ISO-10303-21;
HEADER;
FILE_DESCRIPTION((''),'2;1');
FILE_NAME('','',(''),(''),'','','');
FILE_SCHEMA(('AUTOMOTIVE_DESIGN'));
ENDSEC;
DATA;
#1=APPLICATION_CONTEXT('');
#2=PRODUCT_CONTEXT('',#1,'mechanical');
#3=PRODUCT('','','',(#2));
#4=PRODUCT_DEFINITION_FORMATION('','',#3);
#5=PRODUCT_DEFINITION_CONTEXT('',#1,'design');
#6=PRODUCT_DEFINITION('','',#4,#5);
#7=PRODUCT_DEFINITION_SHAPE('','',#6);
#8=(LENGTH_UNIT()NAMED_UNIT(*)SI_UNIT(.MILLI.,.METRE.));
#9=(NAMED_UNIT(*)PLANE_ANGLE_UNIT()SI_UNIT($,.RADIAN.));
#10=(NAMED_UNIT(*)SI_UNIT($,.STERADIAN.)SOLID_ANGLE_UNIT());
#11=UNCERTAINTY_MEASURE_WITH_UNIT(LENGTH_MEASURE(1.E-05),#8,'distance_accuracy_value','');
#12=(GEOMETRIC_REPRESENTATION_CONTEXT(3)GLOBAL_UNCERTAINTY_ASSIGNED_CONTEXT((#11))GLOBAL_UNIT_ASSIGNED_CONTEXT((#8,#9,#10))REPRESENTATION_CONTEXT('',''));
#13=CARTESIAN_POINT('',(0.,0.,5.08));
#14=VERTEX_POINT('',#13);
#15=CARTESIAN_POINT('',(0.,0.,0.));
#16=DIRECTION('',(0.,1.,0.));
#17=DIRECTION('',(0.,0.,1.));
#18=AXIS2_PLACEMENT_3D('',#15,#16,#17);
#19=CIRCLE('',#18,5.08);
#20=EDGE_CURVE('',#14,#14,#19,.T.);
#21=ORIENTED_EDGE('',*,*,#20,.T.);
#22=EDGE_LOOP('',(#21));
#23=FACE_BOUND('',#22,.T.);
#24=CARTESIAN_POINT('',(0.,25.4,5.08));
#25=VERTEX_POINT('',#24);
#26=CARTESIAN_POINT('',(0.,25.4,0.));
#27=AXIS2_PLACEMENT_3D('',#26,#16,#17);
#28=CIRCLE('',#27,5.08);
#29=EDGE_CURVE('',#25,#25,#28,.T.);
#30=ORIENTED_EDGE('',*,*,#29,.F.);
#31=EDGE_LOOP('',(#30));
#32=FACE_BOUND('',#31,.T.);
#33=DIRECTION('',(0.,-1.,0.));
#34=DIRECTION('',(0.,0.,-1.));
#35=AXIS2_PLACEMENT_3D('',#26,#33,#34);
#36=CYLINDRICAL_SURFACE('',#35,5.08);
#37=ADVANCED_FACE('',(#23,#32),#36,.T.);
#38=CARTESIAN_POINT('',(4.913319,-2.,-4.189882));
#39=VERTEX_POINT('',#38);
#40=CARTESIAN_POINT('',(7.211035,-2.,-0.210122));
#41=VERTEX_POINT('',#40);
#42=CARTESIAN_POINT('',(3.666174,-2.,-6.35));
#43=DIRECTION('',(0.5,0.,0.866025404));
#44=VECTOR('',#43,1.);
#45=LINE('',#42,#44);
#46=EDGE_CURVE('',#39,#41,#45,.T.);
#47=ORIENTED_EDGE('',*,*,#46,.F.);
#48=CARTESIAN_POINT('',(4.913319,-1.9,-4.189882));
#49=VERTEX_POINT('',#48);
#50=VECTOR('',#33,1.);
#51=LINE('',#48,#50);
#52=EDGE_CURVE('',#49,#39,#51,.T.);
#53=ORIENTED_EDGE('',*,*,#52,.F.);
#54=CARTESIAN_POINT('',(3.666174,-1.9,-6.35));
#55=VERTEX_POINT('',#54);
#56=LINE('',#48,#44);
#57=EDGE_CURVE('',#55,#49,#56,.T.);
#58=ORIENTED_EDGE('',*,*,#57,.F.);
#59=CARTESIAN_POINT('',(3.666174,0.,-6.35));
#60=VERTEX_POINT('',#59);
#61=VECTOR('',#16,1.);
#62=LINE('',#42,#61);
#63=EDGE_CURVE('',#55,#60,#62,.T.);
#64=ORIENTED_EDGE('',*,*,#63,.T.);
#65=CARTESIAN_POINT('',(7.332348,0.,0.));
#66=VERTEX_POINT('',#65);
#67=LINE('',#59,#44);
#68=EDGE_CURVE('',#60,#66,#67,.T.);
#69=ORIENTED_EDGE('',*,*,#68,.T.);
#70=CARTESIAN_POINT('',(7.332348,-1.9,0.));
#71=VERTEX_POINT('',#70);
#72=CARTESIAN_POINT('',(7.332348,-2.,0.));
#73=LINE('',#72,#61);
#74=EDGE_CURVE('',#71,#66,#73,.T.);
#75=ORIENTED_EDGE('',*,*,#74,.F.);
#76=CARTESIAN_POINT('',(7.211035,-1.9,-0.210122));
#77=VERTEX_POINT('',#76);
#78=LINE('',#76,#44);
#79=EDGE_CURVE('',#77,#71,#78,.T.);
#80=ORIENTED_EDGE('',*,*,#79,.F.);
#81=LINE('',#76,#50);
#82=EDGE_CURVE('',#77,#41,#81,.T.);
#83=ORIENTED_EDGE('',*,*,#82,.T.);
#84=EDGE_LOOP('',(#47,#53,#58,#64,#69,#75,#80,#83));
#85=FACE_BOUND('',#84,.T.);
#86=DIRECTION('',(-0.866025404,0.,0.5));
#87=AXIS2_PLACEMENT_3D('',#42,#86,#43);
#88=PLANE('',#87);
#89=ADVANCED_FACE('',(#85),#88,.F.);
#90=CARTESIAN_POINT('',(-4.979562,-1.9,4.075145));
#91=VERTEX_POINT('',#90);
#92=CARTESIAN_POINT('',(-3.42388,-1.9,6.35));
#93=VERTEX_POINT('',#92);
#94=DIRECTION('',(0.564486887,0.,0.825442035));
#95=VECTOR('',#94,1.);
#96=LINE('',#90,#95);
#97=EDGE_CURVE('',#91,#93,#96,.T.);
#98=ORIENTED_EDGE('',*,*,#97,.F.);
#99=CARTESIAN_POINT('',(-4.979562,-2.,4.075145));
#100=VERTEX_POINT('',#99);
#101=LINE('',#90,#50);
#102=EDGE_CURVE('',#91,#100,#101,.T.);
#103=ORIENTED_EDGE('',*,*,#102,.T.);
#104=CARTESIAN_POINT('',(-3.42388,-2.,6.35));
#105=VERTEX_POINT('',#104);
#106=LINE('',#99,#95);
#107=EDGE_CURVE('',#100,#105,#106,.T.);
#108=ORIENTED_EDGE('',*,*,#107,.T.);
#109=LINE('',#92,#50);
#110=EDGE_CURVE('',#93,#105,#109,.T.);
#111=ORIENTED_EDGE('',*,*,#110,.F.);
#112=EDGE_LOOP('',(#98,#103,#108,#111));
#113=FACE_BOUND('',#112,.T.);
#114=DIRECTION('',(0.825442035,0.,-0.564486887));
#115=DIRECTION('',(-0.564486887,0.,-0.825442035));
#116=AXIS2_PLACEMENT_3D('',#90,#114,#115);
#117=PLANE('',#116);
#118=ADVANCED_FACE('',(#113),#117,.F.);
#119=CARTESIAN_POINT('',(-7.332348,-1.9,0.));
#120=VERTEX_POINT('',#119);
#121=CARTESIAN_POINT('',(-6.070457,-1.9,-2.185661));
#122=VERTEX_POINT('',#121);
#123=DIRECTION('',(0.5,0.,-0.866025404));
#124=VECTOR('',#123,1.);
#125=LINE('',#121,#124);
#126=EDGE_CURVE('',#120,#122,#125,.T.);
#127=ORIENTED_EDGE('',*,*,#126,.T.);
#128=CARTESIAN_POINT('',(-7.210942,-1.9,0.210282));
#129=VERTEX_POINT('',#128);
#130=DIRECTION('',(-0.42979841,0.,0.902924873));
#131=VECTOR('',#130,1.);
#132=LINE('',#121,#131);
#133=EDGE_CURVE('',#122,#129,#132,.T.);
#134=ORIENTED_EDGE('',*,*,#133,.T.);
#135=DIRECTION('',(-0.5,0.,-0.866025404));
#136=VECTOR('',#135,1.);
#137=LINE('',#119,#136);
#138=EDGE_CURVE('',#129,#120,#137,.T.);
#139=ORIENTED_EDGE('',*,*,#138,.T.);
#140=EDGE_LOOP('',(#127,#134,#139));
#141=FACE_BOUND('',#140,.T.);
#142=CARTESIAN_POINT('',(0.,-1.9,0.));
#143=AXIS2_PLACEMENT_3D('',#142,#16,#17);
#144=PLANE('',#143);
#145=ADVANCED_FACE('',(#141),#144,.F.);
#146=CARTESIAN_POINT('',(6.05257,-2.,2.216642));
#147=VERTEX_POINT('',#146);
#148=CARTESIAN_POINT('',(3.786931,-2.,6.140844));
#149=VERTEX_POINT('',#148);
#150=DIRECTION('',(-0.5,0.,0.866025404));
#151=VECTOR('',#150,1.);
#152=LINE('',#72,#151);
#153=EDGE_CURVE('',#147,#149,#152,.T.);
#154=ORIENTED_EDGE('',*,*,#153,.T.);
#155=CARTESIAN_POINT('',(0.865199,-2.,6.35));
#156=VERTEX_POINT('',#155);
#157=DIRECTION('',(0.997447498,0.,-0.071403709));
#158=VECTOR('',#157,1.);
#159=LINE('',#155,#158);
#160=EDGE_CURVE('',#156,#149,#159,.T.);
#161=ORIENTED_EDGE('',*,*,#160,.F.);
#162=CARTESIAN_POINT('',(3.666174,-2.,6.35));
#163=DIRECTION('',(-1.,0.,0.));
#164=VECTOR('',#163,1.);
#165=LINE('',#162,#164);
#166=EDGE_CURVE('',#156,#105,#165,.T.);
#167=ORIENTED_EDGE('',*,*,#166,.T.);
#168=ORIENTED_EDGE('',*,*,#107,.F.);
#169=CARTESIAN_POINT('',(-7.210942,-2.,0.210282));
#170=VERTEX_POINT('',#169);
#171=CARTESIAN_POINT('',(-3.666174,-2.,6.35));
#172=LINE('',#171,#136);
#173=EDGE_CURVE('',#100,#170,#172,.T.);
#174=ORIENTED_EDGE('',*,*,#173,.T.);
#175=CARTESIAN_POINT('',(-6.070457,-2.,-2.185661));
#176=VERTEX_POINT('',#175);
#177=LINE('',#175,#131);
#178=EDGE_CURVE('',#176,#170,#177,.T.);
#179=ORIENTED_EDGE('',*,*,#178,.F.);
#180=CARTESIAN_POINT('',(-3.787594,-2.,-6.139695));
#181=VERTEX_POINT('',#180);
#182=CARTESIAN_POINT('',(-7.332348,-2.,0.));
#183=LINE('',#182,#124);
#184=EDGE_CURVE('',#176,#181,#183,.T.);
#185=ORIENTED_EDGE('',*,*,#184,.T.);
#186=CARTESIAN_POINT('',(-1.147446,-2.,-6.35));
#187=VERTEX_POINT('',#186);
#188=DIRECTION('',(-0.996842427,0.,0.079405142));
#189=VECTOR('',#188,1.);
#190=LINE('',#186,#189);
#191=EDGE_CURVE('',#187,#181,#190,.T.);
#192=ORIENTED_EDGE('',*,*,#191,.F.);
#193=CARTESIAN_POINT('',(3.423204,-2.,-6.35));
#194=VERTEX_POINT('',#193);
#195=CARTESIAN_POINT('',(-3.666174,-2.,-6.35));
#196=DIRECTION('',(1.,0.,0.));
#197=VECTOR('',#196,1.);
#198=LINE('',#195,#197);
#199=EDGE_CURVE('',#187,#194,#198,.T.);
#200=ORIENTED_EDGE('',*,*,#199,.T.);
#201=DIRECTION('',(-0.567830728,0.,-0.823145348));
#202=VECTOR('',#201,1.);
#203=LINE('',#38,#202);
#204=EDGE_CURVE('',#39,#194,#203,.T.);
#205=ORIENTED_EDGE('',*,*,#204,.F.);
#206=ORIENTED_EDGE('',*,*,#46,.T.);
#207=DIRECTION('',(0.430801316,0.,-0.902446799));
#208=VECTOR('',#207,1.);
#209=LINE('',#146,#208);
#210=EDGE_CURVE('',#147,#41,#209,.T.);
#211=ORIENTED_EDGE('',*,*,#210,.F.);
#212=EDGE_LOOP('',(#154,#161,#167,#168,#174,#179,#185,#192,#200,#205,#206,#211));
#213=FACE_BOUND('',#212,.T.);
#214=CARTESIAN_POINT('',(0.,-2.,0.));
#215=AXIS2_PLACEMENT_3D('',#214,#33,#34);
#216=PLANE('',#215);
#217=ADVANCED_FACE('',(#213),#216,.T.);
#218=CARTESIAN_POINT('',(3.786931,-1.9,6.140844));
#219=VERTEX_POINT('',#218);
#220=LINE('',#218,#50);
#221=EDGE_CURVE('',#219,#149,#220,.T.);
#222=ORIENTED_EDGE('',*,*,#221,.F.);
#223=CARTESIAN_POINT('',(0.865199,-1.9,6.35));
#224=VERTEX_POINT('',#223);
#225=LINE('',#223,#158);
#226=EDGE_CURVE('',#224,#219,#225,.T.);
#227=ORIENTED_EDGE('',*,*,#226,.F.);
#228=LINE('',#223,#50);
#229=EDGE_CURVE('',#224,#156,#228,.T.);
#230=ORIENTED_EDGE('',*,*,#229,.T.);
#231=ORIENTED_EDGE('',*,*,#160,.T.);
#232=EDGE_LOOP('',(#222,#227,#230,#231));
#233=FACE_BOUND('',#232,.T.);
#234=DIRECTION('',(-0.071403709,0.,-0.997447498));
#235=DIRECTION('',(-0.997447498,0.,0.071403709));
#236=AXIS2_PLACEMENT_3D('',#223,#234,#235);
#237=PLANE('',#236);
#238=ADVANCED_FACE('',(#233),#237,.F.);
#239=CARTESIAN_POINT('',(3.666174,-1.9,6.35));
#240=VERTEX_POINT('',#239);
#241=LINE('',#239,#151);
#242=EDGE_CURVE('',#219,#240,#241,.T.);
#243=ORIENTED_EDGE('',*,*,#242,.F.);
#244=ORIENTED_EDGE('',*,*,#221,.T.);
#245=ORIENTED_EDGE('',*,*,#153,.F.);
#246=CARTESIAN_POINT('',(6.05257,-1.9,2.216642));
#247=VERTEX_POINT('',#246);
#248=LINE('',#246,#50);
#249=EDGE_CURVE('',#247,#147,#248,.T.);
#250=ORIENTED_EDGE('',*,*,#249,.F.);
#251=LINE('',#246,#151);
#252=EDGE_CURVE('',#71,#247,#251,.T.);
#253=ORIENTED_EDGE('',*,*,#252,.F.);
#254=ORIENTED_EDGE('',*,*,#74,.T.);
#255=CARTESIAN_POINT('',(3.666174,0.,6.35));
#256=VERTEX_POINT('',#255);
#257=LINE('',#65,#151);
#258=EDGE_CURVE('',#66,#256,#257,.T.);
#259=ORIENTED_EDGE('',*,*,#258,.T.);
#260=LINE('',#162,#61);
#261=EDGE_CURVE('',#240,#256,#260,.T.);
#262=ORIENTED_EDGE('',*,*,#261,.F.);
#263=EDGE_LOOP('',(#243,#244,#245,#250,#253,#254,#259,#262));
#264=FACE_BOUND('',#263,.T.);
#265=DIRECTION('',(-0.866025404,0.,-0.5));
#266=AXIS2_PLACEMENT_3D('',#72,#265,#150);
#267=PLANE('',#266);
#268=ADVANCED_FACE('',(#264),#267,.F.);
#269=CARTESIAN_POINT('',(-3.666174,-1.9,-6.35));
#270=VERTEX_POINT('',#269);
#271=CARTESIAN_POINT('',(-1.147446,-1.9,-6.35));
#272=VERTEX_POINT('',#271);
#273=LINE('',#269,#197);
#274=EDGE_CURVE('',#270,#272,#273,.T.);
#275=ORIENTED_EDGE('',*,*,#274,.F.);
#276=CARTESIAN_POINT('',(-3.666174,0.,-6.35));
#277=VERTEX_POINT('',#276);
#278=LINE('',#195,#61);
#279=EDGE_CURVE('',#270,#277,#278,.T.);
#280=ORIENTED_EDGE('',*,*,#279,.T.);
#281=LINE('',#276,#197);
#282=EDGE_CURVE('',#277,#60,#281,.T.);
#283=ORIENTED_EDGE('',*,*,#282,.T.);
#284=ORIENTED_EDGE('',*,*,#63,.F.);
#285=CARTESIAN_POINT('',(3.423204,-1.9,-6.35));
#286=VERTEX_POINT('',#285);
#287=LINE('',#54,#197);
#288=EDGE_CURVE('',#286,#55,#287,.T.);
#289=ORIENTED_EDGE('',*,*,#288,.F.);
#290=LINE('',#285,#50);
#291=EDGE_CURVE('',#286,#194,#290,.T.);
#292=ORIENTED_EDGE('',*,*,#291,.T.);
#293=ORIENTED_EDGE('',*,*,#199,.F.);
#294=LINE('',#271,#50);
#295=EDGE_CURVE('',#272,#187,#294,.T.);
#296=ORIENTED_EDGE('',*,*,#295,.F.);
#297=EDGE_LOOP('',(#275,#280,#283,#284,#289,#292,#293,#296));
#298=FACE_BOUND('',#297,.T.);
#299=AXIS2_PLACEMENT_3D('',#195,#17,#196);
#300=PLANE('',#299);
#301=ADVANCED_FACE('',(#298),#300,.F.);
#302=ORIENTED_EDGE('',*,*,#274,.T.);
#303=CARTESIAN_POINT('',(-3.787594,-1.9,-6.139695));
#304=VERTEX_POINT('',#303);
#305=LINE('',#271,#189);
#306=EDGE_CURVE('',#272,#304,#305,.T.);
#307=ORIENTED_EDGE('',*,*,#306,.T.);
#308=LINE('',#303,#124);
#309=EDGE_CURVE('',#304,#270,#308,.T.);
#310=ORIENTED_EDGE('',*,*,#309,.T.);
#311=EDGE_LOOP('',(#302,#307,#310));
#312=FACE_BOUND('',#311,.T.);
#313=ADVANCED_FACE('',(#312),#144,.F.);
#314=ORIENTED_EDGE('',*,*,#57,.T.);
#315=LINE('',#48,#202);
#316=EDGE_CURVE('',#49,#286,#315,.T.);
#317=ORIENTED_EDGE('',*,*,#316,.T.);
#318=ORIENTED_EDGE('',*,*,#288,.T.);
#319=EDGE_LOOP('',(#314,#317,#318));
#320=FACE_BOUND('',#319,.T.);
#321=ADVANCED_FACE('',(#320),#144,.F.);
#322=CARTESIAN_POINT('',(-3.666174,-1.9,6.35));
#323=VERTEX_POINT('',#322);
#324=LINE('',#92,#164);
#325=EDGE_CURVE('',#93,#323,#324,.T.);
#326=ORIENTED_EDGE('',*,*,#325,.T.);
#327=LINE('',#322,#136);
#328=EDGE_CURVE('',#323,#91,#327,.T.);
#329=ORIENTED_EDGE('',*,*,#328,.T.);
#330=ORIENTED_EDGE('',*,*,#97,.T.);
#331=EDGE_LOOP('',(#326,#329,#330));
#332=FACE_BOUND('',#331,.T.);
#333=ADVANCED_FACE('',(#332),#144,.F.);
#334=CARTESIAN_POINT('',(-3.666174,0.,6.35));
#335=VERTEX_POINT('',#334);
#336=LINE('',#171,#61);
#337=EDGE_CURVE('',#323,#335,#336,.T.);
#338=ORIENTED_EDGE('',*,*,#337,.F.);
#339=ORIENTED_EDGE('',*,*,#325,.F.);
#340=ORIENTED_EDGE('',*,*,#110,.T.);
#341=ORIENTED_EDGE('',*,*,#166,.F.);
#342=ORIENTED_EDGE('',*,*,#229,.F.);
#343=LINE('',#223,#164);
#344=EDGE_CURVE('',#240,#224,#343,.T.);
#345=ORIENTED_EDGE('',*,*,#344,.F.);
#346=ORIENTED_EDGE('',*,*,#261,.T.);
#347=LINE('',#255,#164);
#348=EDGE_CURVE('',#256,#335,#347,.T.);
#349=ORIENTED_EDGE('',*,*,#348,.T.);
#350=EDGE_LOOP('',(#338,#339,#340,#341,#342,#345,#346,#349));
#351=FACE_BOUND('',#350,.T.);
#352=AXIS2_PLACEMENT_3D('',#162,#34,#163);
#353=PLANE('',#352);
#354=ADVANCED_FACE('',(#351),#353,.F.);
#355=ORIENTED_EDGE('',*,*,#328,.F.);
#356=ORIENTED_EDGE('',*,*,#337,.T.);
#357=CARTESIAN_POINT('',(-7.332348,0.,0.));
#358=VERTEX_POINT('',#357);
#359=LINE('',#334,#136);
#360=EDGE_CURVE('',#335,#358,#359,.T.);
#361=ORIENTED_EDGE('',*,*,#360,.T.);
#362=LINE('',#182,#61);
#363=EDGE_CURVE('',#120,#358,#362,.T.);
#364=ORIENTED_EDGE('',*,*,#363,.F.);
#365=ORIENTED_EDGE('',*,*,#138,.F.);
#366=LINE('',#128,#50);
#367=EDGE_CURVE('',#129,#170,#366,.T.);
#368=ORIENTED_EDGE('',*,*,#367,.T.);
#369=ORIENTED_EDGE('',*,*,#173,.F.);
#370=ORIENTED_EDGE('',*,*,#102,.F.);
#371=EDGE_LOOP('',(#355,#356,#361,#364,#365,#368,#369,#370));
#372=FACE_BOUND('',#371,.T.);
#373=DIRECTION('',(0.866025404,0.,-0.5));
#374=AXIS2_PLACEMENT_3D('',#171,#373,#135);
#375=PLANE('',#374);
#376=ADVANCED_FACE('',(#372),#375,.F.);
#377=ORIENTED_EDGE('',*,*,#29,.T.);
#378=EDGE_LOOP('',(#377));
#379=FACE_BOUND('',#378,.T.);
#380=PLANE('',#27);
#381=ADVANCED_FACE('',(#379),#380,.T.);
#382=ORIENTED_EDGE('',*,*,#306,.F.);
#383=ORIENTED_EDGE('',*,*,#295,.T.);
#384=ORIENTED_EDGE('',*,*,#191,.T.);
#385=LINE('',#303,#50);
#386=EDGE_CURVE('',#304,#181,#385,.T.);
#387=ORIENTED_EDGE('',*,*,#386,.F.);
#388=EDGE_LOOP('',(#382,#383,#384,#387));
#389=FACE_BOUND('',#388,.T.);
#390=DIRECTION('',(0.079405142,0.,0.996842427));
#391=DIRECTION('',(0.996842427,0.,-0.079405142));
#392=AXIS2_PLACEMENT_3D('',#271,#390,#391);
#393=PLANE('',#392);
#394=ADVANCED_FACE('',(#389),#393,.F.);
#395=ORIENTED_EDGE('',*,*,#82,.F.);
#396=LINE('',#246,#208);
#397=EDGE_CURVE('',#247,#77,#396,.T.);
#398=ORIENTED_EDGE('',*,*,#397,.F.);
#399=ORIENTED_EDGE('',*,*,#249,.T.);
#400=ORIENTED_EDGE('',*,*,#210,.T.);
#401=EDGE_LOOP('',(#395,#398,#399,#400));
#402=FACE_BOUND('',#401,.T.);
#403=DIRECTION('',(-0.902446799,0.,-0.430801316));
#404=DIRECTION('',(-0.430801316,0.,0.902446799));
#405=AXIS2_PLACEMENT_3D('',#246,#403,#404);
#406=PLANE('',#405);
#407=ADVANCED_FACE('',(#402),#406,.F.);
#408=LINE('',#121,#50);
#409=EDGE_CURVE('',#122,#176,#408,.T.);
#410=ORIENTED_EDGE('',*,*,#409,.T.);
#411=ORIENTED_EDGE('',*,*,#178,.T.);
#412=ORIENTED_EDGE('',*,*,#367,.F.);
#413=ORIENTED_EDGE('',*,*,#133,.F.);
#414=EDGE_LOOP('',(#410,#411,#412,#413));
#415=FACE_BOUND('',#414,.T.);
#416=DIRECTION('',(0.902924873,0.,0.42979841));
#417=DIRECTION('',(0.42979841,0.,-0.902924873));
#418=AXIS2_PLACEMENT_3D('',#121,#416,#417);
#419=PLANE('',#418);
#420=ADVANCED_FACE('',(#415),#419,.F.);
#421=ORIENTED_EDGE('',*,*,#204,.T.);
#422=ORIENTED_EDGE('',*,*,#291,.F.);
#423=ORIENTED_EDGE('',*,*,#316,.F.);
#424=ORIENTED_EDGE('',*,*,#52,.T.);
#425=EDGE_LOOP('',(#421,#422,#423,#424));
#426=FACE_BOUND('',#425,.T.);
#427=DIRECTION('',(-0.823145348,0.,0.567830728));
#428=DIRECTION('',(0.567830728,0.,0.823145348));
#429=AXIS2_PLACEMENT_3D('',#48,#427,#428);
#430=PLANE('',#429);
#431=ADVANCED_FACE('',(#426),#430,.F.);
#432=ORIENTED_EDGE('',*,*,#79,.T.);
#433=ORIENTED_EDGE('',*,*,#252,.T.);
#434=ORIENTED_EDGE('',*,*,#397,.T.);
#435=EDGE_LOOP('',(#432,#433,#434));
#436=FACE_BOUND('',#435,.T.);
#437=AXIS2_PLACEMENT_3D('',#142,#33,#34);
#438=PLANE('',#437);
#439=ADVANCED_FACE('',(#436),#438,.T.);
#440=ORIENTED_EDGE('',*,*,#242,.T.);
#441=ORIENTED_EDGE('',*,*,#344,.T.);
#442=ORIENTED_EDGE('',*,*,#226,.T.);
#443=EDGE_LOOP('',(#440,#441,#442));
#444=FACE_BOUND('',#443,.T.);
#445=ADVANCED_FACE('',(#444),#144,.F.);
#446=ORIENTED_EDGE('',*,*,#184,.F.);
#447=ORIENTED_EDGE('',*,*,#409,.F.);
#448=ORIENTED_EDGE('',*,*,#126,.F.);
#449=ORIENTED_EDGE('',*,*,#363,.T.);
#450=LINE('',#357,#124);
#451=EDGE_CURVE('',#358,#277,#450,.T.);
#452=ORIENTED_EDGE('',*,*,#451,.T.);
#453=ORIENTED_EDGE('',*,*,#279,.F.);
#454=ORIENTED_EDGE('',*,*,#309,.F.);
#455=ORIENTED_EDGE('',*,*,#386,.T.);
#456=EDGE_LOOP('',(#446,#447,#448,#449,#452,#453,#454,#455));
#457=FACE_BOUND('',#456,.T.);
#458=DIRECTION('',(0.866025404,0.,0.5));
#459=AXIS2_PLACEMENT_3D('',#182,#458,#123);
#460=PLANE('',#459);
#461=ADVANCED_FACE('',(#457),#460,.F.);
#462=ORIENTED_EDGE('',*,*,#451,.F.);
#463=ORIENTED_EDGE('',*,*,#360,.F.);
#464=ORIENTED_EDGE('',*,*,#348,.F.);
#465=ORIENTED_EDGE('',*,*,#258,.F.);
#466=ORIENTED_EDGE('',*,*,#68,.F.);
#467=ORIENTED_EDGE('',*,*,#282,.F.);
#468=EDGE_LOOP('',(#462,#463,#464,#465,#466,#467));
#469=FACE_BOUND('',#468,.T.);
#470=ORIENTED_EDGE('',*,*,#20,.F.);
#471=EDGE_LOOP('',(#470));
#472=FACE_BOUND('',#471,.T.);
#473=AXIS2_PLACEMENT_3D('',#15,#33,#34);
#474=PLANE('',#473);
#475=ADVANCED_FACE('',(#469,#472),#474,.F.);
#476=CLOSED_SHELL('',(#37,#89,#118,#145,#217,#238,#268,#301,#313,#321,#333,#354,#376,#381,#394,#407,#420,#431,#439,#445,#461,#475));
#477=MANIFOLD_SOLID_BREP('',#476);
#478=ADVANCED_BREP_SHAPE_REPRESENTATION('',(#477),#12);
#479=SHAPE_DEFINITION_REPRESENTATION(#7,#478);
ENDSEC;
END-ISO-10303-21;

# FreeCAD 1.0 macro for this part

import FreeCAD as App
import Part
import Sketcher
from FreeCAD import Vector
Q = App.Units.Quantity


def add_polygon(sketch, points):
    """Adds a closed chain of lines whose ends are joined by coincident constraints."""
    first, n = sketch.GeometryCount, len(points)
    for a, b in zip(points, points[1:] + points[:1]):
        sketch.addGeometry(Part.LineSegment(App.Vector(*a, 0), App.Vector(*b, 0)), False)
    for i in range(n):
        sketch.addConstraint(Sketcher.Constraint("Coincident", first + i, 2, first + (i + 1) % n, 1))

doc = App.newDocument("Part")
params = doc.addObject("Spreadsheet::Sheet", "Params")
for row, (alias, value) in enumerate([
    ("sketch1_diameter", "10.16 mm"),
    ("pad1_length", "25.4 mm"),
    ("pad2_length", "2 mm"),
    ("pocket1_length", "0.1 mm"),
], start=1):
    params.set(f"A{row}", alias)
    params.set(f"B{row}", "=" + value)
    params.setAlias(f"B{row}", alias)

body = doc.addObject("PartDesign::Body", "Body")

sketch1 = body.newObject("Sketcher::SketchObject", "Sketch")
sketch1.AttachmentSupport = (doc.getObject("XZ_Plane"), [""])
sketch1.MapMode = "FlatFace"
sketch1.addGeometry(Part.Circle(Vector(0, 0, 0), Vector(0, 0, 1), 5.08), False)
sketch1.addConstraint([
    Sketcher.Constraint("Coincident", 0, 3, -1, 1),
    Sketcher.Constraint("Diameter", 0, 10.16),
])
sketch1.setExpression("Constraints[1]", "Params.sketch1_diameter")
pad1 = body.newObject("PartDesign::Pad", "Pad")
pad1.Profile = sketch1
pad1.setExpression("Length", "Params.pad1_length")
pad1.Reversed = True

sketch2 = body.newObject("Sketcher::SketchObject", "Sketch001")
sketch2.AttachmentSupport = (doc.getObject("XZ_Plane"), [""])
sketch2.MapMode = "FlatFace"
add_polygon(sketch2, [(-7.332348, 0), (-3.666174, -6.35), (3.666174, -6.35), (7.332348, 0), (3.666174, 6.35), (-3.666174, 6.35)])
sketch2.addConstraint([
    Sketcher.Constraint("Horizontal", 1),
    Sketcher.Constraint("Horizontal", 4),
    Sketcher.Constraint("Symmetric", 0, 2, 3, 2, -1, 1),
    Sketcher.Constraint("Symmetric", 2, 2, 5, 2, -1, 1),
    Sketcher.Constraint("PointOnObject", 2, 2, -1),
    Sketcher.Constraint("Parallel", 2, 5),
    Sketcher.Constraint("Vertical", 1, 2, 3, 2),
    Sketcher.Constraint("Angle", 0, Q("-60 deg")),
    Sketcher.Constraint("DistanceY", 1, 2, 3, 2, 12.7),
    Sketcher.Constraint("DistanceX", 1, 1, 1, 2, 7.332348),
])
pad2 = body.newObject("PartDesign::Pad", "Pad001")
pad2.Profile = sketch2
pad2.setExpression("Length", "Params.pad2_length")

sketch3 = body.newObject("Sketcher::SketchObject", "Sketch002")
sketch3.AttachmentSupport = (doc.getObject("XZ_Plane"), [""])
sketch3.MapMode = "FlatFace"
sketch3.AttachmentOffset = App.Placement(Vector(0, 0, 2), App.Rotation())
add_polygon(sketch3, [(-4.979562, 4.075145), (-3.42388, 6.35), (-3.666174, 6.35)])
add_polygon(sketch3, [(0.865199, 6.35), (3.786931, 6.140844), (3.666174, 6.35)])
add_polygon(sketch3, [(6.05257, 2.216642), (7.211035, -0.210122), (7.332348, 0)])
add_polygon(sketch3, [(4.913319, -4.189882), (3.423204, -6.35), (3.666174, -6.35)])
add_polygon(sketch3, [(-1.147446, -6.35), (-3.787594, -6.139695), (-3.666174, -6.35)])
add_polygon(sketch3, [(-6.070457, -2.185661), (-7.210942, 0.210282), (-7.332348, 0)])
sketch3.addConstraint([
    Sketcher.Constraint("Horizontal", 1),
    Sketcher.Constraint("Horizontal", 5),
    Sketcher.Constraint("Horizontal", 10),
    Sketcher.Constraint("Horizontal", 14),
    Sketcher.Constraint("Symmetric", 1, 2, 10, 2, -1, 1),
    Sketcher.Constraint("Symmetric", 4, 2, 13, 2, -1, 1),
    Sketcher.Constraint("Symmetric", 7, 2, 16, 2, -1, 1),
    Sketcher.Constraint("Symmetric", 1, 2, 4, 2, -2),
    Sketcher.Constraint("PointOnObject", 7, 2, -1),
    Sketcher.Constraint("Parallel", 2, 7),
    Sketcher.Constraint("Parallel", 4, 8),
    Sketcher.Constraint("Parallel", 7, 11),
    Sketcher.Constraint("Parallel", 8, 13),
    Sketcher.Constraint("Parallel", 11, 16),
    Sketcher.Constraint("Parallel", 13, 17),
    Sketcher.Constraint("Angle", 2, Q("-120 deg")),
    Sketcher.Constraint("Angle", 4, Q("120 deg")),
    Sketcher.Constraint("DistanceY", 9, 2, 4, 2, 12.7),
    Sketcher.Constraint("DistanceX", 10, 1, 10, 2, 0.24297),
    Sketcher.Constraint("DistanceX", 14, 1, 14, 2, 2.518729),
    Sketcher.Constraint("DistanceX", -1, 1, 5, 2, 0.865199),
    Sketcher.Constraint("DistanceY", 2, 2, 3, 2, 2.065698),
    Sketcher.Constraint("Distance", 3, 2.929208),
    Sketcher.Constraint("Distance", 11, 2.494289),
    Sketcher.Constraint("Distance", 12, 2.648511),
    Sketcher.Constraint("DistanceX", 1, 2, 1, 1, 0.242294),
    Sketcher.Constraint("DistanceX", 5, 2, 5, 1, 2.800975),
    Sketcher.Constraint("DistanceY", 6, 2, -1, 1, 0.210122),
    Sketcher.Constraint("DistanceX", -1, 1, 7, 2, 7.332348),
    Sketcher.Constraint("DistanceX", -1, 1, 8, 2, 6.05257),
    Sketcher.Constraint("DistanceX", 15, 2, -1, 1, 7.210942),
    Sketcher.Constraint("DistanceY", 17, 2, -1, 1, 2.185661),
])
pocket1 = body.newObject("PartDesign::Pocket", "Pocket")
pocket1.Profile = sketch3
pocket1.setExpression("Length", "Params.pocket1_length")

doc.recompute()
